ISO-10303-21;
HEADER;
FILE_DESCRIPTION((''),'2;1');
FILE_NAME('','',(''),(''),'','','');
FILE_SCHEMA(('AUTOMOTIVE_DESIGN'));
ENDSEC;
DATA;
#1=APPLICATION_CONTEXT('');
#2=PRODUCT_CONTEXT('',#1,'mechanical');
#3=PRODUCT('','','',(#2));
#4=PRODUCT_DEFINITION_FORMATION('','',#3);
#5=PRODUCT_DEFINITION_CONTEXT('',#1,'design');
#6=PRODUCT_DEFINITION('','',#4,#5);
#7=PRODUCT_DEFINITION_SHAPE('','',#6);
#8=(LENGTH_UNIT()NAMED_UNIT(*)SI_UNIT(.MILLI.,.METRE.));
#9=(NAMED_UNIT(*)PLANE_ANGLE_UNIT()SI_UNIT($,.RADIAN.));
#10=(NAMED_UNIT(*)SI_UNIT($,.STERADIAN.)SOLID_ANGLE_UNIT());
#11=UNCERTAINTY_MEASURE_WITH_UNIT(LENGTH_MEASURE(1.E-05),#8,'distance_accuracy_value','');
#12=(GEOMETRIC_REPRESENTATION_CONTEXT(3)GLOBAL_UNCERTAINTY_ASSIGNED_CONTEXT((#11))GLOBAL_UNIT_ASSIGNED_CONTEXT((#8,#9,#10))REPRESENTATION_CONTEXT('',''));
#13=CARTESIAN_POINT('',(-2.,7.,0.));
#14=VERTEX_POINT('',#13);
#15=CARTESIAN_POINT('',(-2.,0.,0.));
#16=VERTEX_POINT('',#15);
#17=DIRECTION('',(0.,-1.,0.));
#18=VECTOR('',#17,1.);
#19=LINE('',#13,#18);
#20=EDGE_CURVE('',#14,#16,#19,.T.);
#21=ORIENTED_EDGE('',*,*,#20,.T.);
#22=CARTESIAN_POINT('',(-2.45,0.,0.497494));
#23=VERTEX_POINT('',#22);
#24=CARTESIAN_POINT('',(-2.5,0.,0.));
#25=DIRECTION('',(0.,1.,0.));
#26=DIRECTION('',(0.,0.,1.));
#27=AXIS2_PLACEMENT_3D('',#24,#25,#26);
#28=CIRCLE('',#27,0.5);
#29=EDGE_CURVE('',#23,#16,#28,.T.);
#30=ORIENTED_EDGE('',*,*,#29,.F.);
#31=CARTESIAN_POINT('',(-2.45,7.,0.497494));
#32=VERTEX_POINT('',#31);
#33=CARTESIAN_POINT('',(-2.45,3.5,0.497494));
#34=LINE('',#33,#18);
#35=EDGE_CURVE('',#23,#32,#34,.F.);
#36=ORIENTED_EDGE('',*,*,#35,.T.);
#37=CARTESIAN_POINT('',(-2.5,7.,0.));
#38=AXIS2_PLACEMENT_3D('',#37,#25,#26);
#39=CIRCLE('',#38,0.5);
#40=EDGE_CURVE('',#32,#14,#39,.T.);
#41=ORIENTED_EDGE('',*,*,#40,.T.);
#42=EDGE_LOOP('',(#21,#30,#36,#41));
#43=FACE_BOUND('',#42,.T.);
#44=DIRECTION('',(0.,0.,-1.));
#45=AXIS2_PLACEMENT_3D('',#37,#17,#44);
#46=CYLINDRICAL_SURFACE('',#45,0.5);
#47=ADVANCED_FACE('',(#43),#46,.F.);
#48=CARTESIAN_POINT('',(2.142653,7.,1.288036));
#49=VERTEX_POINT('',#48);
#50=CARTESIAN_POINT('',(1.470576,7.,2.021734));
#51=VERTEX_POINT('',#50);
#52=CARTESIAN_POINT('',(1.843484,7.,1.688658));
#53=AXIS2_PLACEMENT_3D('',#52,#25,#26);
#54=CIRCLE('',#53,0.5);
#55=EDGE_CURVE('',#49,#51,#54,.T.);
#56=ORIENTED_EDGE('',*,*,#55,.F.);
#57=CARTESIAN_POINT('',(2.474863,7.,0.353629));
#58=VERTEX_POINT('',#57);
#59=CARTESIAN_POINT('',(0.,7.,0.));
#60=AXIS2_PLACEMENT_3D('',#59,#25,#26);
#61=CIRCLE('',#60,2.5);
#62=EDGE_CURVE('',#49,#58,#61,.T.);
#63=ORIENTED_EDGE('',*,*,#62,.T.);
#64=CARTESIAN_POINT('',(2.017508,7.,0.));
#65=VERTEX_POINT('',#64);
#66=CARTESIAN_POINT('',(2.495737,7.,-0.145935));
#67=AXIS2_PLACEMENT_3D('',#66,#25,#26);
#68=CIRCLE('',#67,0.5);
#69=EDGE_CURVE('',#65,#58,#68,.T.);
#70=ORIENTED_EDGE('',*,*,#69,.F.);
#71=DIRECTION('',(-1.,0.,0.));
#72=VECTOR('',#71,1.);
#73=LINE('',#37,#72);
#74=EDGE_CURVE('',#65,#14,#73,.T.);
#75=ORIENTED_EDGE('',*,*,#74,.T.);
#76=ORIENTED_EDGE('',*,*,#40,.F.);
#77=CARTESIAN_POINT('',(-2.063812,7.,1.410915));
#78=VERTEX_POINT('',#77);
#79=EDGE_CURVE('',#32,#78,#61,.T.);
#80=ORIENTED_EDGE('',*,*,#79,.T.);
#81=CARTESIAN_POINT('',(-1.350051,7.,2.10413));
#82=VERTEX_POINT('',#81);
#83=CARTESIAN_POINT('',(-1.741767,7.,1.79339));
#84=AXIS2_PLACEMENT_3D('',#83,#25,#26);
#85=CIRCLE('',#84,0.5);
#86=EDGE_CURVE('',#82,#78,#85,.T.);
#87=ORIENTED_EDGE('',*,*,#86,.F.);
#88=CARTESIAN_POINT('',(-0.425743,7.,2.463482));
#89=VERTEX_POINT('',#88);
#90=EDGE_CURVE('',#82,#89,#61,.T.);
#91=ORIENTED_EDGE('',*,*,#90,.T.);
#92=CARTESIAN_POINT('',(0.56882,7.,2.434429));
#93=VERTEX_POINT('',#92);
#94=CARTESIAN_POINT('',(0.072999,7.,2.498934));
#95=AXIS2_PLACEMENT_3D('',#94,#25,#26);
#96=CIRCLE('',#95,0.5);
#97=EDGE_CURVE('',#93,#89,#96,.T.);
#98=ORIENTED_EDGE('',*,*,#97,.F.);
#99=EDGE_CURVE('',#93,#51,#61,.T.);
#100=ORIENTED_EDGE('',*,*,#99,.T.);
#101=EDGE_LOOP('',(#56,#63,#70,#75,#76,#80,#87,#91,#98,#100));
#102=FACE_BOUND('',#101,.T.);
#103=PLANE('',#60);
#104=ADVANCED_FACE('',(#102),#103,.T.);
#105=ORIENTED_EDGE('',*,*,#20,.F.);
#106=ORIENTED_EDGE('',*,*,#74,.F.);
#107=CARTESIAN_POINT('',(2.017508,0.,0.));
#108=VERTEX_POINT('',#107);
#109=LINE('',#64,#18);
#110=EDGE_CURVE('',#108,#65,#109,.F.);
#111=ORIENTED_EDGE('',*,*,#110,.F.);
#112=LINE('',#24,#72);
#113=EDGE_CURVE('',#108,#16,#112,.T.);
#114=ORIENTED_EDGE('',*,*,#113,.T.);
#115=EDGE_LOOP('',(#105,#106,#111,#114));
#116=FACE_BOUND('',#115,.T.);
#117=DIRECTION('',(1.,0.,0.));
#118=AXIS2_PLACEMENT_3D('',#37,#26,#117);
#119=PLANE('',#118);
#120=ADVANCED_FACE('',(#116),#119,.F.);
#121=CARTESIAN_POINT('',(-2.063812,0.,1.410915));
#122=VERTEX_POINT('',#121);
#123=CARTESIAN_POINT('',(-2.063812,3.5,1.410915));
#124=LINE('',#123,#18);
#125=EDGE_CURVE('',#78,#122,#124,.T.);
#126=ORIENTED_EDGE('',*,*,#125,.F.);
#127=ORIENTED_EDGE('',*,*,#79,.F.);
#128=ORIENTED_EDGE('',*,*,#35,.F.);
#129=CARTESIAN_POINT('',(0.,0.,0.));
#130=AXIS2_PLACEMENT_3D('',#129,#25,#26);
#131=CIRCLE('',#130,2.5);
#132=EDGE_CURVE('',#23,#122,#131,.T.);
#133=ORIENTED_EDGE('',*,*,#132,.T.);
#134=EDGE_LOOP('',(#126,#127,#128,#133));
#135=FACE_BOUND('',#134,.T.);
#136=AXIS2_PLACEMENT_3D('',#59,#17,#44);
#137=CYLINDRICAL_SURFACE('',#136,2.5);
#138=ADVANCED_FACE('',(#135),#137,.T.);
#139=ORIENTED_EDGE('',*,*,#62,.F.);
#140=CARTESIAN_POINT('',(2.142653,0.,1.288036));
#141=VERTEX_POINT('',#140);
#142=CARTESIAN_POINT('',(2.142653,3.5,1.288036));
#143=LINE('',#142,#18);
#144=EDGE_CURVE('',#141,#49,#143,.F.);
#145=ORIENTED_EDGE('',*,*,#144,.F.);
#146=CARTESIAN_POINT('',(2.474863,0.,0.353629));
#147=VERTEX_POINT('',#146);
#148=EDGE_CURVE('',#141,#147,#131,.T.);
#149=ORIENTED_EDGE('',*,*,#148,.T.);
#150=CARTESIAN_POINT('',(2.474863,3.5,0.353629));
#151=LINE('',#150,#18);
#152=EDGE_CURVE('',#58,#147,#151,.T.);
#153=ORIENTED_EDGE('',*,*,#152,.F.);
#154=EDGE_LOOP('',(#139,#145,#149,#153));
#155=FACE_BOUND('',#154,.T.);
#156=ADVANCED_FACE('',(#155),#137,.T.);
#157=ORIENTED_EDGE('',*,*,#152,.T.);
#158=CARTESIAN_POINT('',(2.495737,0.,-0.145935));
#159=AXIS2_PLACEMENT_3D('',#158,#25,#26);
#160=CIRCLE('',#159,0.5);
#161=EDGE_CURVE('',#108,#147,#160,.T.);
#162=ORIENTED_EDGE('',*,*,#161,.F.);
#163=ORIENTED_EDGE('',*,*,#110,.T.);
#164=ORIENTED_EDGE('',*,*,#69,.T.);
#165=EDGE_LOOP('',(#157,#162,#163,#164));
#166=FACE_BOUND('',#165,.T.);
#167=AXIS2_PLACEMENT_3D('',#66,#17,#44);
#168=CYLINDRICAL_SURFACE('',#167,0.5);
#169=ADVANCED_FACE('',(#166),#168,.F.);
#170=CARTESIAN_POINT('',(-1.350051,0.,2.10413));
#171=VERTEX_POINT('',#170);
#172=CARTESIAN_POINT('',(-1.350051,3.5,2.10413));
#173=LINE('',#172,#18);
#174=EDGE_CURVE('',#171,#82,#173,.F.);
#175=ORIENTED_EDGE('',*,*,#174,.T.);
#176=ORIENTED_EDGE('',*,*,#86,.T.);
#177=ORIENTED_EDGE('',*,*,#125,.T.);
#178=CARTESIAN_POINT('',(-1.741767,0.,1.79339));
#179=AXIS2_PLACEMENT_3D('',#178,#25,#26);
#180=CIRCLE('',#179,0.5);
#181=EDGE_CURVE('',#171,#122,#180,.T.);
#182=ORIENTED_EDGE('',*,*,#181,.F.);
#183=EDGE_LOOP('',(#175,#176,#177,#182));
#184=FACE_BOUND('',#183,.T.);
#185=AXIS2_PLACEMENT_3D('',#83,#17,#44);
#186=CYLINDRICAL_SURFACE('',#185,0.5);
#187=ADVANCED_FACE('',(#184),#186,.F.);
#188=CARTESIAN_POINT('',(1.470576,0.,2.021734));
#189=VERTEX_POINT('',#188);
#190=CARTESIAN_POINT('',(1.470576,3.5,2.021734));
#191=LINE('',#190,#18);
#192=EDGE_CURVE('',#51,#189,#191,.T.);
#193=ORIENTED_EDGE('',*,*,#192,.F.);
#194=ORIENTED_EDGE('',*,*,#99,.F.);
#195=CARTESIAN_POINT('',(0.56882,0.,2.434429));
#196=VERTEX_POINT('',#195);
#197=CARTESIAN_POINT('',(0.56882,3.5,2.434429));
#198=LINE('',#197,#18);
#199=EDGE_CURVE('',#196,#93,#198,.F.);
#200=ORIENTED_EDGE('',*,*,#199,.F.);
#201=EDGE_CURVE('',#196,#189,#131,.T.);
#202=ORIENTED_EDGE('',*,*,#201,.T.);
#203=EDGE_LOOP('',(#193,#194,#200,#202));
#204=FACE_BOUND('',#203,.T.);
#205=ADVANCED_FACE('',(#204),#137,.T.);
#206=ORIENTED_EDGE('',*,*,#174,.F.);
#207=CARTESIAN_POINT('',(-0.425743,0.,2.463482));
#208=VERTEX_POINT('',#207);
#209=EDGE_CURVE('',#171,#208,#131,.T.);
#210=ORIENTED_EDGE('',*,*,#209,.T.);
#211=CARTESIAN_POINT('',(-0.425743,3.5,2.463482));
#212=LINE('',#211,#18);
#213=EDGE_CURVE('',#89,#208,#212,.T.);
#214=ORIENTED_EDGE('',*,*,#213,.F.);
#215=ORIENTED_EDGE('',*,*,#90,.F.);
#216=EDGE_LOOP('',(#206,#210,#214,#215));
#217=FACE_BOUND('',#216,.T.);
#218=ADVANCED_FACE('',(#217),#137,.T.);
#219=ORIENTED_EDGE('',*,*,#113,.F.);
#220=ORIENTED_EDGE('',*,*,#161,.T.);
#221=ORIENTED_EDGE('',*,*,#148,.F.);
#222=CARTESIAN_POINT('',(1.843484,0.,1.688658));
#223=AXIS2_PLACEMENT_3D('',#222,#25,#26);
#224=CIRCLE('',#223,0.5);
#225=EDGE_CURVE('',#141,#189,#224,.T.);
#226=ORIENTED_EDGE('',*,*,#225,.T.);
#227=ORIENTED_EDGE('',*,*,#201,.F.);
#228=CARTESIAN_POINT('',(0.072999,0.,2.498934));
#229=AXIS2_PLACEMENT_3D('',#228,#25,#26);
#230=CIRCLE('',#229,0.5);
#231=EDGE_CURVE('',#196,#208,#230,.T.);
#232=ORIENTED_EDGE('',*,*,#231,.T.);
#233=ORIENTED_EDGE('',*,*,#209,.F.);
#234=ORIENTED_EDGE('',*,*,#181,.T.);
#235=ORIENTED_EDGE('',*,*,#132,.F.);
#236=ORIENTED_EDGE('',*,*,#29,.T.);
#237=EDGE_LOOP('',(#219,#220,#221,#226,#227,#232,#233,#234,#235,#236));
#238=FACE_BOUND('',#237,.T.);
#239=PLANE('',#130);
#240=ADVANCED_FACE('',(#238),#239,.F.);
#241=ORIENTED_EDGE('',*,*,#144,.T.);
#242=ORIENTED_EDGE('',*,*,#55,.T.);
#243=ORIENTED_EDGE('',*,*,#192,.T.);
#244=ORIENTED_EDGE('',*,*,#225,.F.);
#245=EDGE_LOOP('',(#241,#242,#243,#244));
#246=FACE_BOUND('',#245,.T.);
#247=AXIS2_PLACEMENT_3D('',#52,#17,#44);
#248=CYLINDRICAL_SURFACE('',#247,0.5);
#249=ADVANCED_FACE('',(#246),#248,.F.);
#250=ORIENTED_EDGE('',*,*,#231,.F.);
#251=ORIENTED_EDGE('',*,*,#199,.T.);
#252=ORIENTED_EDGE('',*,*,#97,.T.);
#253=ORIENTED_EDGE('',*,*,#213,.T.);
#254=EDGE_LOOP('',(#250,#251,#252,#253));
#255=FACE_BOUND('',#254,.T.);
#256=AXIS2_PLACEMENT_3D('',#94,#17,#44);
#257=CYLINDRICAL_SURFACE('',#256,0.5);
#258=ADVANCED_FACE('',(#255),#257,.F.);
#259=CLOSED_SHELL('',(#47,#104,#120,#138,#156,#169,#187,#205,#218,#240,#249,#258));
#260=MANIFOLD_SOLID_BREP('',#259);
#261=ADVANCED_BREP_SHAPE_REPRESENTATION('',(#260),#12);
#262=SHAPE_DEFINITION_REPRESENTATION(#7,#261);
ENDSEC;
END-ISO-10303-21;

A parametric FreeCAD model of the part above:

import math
import FreeCAD as App
import Part
import Sketcher
from FreeCAD import Vector
Q = App.Units.Quantity

doc = App.newDocument("Part")
body = doc.addObject("PartDesign::Body", "Body")

# Sketch on XZ plane
sketch1 = body.newObject("Sketcher::SketchObject", "Sketch")
sketch1.AttachmentSupport = (doc.getObject("XZ_Plane"), [""])
sketch1.MapMode = "FlatFace"
sketch1.addGeometry(Part.LineSegment(Vector(2.5, 0, 0), Vector(-2.5, 0, 0)), False)
sketch1.addGeometry(Part.ArcOfCircle(Part.Circle(Vector(0, 0, 0), Vector(0, 0, 1), 2.5), math.radians(0), math.radians(180)), False)
sketch1.addConstraint(Sketcher.Constraint("Coincident", 0, 1, 1, 1))
sketch1.addConstraint(Sketcher.Constraint("Coincident", 1, 2, 0, 2))
sketch1.addConstraint(Sketcher.Constraint("Horizontal", 0))
sketch1.addConstraint(Sketcher.Constraint("Coincident", 1, 3, -1, 1))
sketch1.addConstraint(Sketcher.Constraint("PointOnObject", 0, 1, -1))
sketch1.addConstraint(Sketcher.Constraint("Radius", 1, Q("2.5 mm")))
pad1 = body.newObject("PartDesign::Pad", "Pad")
pad1.Profile = sketch1
pad1.Length = 7
pad1.Reversed = True

# Sketch on XZ plane
sketch2 = body.newObject("Sketcher::SketchObject", "Sketch001")
sketch2.AttachmentSupport = (doc.getObject("XZ_Plane"), [""])
sketch2.MapMode = "FlatFace"
sketch2.addGeometry(Part.Circle(Vector(-2.5, 0, 0), Vector(0, 0, 1), 0.5), False)
sketch2.addGeometry(Part.Circle(Vector(-1.741767, 1.79339, 0), Vector(0, 0, 1), 0.5), False)
sketch2.addGeometry(Part.Circle(Vector(0.072999, 2.498934, 0), Vector(0, 0, 1), 0.5), False)
sketch2.addGeometry(Part.Circle(Vector(1.843484, 1.688658, 0), Vector(0, 0, 1), 0.5), False)
sketch2.addGeometry(Part.Circle(Vector(2.495737, -0.145935, 0), Vector(0, 0, 1), 0.5), False)
sketch2.addConstraint(Sketcher.Constraint("Equal", 0, 1))
sketch2.addConstraint(Sketcher.Constraint("Equal", 1, 2))
sketch2.addConstraint(Sketcher.Constraint("Equal", 2, 3))
sketch2.addConstraint(Sketcher.Constraint("Equal", 3, 4))
sketch2.addConstraint(Sketcher.Constraint("PointOnObject", 0, 3, -1))
sketch2.addConstraint(Sketcher.Constraint("Diameter", 0, Q("1 mm")))
sketch2.addConstraint(Sketcher.Constraint("DistanceX", 0, 3, -1, 1, Q("2.5 mm")))
sketch2.addConstraint(Sketcher.Constraint("DistanceX", -1, 1, 2, 3, Q("0.072999 mm")))
sketch2.addConstraint(Sketcher.Constraint("DistanceY", -1, 1, 1, 3, Q("1.79339 mm")))
sketch2.addConstraint(Sketcher.Constraint("DistanceX", 1, 3, 3, 3, Q("3.585251 mm")))
sketch2.addConstraint(Sketcher.Constraint("DistanceX", 2, 3, 4, 3, Q("2.422738 mm")))
sketch2.addConstraint(Sketcher.Constraint("DistanceY", 4, 3, 2, 3, Q("2.644869 mm")))
sketch2.addConstraint(Sketcher.Constraint("DistanceX", 1, 3, -1, 1, Q("1.741767 mm")))
sketch2.addConstraint(Sketcher.Constraint("DistanceY", -1, 1, 2, 3, Q("2.498934 mm")))
sketch2.addConstraint(Sketcher.Constraint("DistanceY", -1, 1, 3, 3, Q("1.688658 mm")))
pocket1 = body.newObject("PartDesign::Pocket", "Pocket")
pocket1.Profile = sketch2
pocket1.Type = "ThroughAll"

doc.recompute()
